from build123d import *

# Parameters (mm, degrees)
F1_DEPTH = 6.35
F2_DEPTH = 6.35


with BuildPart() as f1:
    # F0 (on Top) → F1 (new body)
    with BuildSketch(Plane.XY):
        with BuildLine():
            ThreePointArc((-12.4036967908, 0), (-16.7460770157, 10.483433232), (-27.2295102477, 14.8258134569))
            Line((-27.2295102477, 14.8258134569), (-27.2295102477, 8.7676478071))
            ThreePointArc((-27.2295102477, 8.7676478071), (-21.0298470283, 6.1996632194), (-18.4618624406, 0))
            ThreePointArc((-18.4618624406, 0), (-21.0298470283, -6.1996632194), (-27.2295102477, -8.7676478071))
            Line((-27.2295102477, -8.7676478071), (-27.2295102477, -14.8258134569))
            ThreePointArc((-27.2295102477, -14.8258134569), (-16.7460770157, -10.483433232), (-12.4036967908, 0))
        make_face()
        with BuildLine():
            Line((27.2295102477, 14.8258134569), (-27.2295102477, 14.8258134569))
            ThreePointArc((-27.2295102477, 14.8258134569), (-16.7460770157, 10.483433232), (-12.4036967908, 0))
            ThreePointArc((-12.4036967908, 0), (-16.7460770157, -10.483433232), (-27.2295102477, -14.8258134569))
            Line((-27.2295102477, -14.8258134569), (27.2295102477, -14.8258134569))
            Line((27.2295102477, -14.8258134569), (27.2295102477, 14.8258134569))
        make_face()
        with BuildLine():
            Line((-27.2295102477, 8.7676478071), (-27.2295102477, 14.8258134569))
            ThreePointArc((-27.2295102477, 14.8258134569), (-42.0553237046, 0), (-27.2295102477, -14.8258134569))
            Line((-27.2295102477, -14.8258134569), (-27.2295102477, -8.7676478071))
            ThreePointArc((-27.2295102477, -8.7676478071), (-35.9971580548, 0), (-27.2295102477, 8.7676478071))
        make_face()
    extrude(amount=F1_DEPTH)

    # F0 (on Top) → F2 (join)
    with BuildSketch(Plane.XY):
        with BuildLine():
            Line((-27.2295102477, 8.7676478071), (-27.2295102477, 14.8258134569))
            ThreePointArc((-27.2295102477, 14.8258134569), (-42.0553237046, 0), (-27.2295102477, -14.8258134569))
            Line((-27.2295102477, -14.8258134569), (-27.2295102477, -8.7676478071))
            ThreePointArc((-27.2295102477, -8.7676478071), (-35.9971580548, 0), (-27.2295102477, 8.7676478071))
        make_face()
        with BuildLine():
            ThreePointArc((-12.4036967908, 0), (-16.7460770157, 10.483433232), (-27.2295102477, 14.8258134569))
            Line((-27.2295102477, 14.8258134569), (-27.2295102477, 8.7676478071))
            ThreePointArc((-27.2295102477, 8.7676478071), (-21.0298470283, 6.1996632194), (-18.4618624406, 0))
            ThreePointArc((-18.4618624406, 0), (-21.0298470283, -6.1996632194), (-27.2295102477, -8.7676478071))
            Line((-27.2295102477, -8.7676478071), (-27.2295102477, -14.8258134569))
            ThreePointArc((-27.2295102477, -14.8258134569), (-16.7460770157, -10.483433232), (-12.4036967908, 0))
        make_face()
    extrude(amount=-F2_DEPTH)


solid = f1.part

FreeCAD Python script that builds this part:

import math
import FreeCAD as App
import Part
import Sketcher
Q = App.Units.Quantity

doc = App.newDocument("Part")
body = doc.addObject("PartDesign::Body", "Body")

sketch1 = doc.addObject("Sketcher::SketchObject", "Sketch")
body.addObject(sketch1)
sketch1.AttachmentSupport = (doc.XY_Plane, [""])
sketch1.MapMode = "FlatFace"
sketch1.addGeometry([
    Part.LineSegment(App.Vector(-27, -15, 0), App.Vector(27, -15, 0)),
    Part.LineSegment(App.Vector(27, -15, 0), App.Vector(27, 15, 0)),
    Part.LineSegment(App.Vector(27, 15, 0), App.Vector(-27, 15, 0)),
    Part.ArcOfCircle(Part.Circle(App.Vector(-27, 0, 0), App.Vector(0, 0, 1), 15), math.radians(90), math.radians(270)),
    Part.ArcOfCircle(Part.Circle(App.Vector(-27, 0, 0), App.Vector(0, 0, 1), 9), math.radians(0), math.radians(90)),
    Part.ArcOfCircle(Part.Circle(App.Vector(-27, 0, 0), App.Vector(0, 0, 1), 9), math.radians(-90), math.radians(0)),
    Part.ArcOfCircle(Part.Circle(App.Vector(-27, 0, 0), App.Vector(0, 0, 1), 9), math.radians(90), math.radians(270)),
], False)
sketch1.addConstraint([
    Sketcher.Constraint("Coincident", 0, 2, 1, 1),
    Sketcher.Constraint("Coincident", 1, 2, 2, 1),
    Sketcher.Constraint("Tangent", 2, 2, 3, 1),
    Sketcher.Constraint("Tangent", 3, 2, 0, 1),
    Sketcher.Constraint("Tangent", 4, 1, 5, 2),
    Sketcher.Constraint("Tangent", 5, 1, 6, 2),
    Sketcher.Constraint("Tangent", 6, 1, 4, 2),
    Sketcher.Constraint("Horizontal", 0),
    Sketcher.Constraint("Vertical", 1),
    Sketcher.Constraint("Horizontal", 2),
    Sketcher.Constraint("Coincident", 4, 3, 3, 3),
    Sketcher.Constraint("Symmetric", 0, 2, 2, 2, -1, 1),
    Sketcher.Constraint("PointOnObject", 4, 1, -1),
    Sketcher.Constraint("Vertical", 3, 2, 5, 1),
    Sketcher.Constraint("Vertical", 5, 1, 6, 1),
    Sketcher.Constraint("Radius", 3, Q("14.825813 mm")),
    Sketcher.Constraint("Radius", 4, Q("8.767648 mm")),
    Sketcher.Constraint("DistanceX", 0, 1, 0, 2, Q("54.45902 mm")),
])
pad1 = doc.addObject("PartDesign::Pad", "Pad")
body.addObject(pad1)
pad1.Profile = sketch1
pad1.Length = Q("0.25 in")

sketch2 = doc.addObject("Sketcher::SketchObject", "Sketch001")
body.addObject(sketch2)
sketch2.AttachmentSupport = (doc.XY_Plane, [""])
sketch2.MapMode = "FlatFace"
sketch2.addGeometry([
    Part.ArcOfCircle(Part.Circle(App.Vector(-27, 0, 0), App.Vector(0, 0, 1), 15), math.radians(90), math.radians(270)),
    Part.ArcOfCircle(Part.Circle(App.Vector(-27, 0, 0), App.Vector(0, 0, 1), 15), math.radians(-90), math.radians(0)),
    Part.ArcOfCircle(Part.Circle(App.Vector(-27, 0, 0), App.Vector(0, 0, 1), 15), math.radians(0), math.radians(90)),
    Part.ArcOfCircle(Part.Circle(App.Vector(-27, 0, 0), App.Vector(0, 0, 1), 9), math.radians(90), math.radians(270)),
    Part.ArcOfCircle(Part.Circle(App.Vector(-27, 0, 0), App.Vector(0, 0, 1), 9), math.radians(0), math.radians(90)),
    Part.ArcOfCircle(Part.Circle(App.Vector(-27, 0, 0), App.Vector(0, 0, 1), 9), math.radians(-90), math.radians(0)),
], False)
sketch2.addConstraint([
    Sketcher.Constraint("Tangent", 0, 2, 1, 1),
    Sketcher.Constraint("Tangent", 1, 2, 2, 1),
    Sketcher.Constraint("Tangent", 2, 2, 0, 1),
    Sketcher.Constraint("Tangent", 3, 1, 4, 2),
    Sketcher.Constraint("Tangent", 4, 1, 5, 2),
    Sketcher.Constraint("Tangent", 5, 1, 3, 2),
    Sketcher.Constraint("Coincident", 3, 3, 0, 3),
    Sketcher.Constraint("Symmetric", 0, 2, 2, 2, -1),
    Sketcher.Constraint("PointOnObject", 1, 2, -1),
    Sketcher.Constraint("PointOnObject", 4, 1, -1),
    Sketcher.Constraint("Vertical", 5, 3, 0, 2),
    Sketcher.Constraint("Vertical", 2, 2, 3, 1),
    Sketcher.Constraint("Vertical", 3, 1, 5, 1),
    Sketcher.Constraint("Radius", 0, Q("14.825813 mm")),
    Sketcher.Constraint("Radius", 3, Q("8.767648 mm")),
    Sketcher.Constraint("DistanceX", 0, 3, -1, 1, Q("27.22951 mm")),
])
pad2 = doc.addObject("PartDesign::Pad", "Pad001")
body.addObject(pad2)
pad2.Profile = sketch2
pad2.Length = Q("0.25 in")
pad2.Reversed = True

doc.recompute()
